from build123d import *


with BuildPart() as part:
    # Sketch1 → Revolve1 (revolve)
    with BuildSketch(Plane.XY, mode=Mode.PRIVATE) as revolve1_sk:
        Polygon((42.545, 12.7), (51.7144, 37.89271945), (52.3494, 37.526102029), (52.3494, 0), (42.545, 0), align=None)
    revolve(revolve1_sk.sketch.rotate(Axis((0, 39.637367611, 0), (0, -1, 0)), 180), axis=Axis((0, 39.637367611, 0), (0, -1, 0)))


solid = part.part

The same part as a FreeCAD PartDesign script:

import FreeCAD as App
import Part
import Sketcher
from FreeCAD import Vector
Q = App.Units.Quantity

doc = App.newDocument("Part")
params = doc.addObject("Spreadsheet::Sheet", "Params")
for row, (alias, value) in enumerate([
    ("sketch1_height", "0.5 in"),
    ("sketch1_width", "0.386 in"),
    ("revolution_angle", "360 deg"),
], start=1):
    params.set(f"A{row}", alias)
    params.set(f"B{row}", "=" + value)
    params.setAlias(f"B{row}", alias)

body = doc.addObject("PartDesign::Body", "Body")

# Sketch on XY plane
sketch1 = doc.addObject("Sketcher::SketchObject", "Sketch")
body.addObject(sketch1)
sketch1.AttachmentSupport = (doc.XY_Plane, [""])
sketch1.MapMode = "FlatFace"
sketch1.addGeometry([
    Part.LineSegment(Vector(51.7144, 37.892719, 0), Vector(42.545, 12.7, 0)),  # 0
    Part.LineSegment(Vector(42.545, 12.7, 0), Vector(42.545, 0, 0)),  # 1
    Part.LineSegment(Vector(42.545, 0, 0), Vector(52.3494, 0, 0)),  # 2
    Part.LineSegment(Vector(52.3494, 0, 0), Vector(52.3494, 37.526102, 0)),  # 3
    Part.LineSegment(Vector(52.3494, 37.526102, 0), Vector(51.7144, 37.892719, 0)),  # 4
], False)
sketch1.addConstraint([
    Sketcher.Constraint("Coincident", 0, 2, 1, 1),
    Sketcher.Constraint("Coincident", 1, 2, 2, 1),
    Sketcher.Constraint("Coincident", 2, 2, 3, 1),
    Sketcher.Constraint("Coincident", 3, 2, 4, 1),
    Sketcher.Constraint("Coincident", 4, 2, 0, 1),
    Sketcher.Constraint("Vertical", 1),
    Sketcher.Constraint("Horizontal", 2),
    Sketcher.Constraint("Vertical", 3),
    Sketcher.Constraint("PointOnObject", 1, 2, -1),
    Sketcher.Constraint("DistanceY", 1, 2, 1, 1, Q("0.5 in")),
    Sketcher.Constraint("Angle", 0, Q("-110 deg")),
    Sketcher.Constraint("Angle", 4, Q("150 deg")),
    Sketcher.Constraint("DistanceX", 2, 1, 2, 2, Q("0.386 in")),
    Sketcher.Constraint("DistanceX", -1, 1, 0, 2, Q("1.675 in")),
    Sketcher.Constraint("DistanceX", -1, 1, 4, 2, Q("2.036 in")),
])
sketch1.setExpression("Constraints[9]", "Params.sketch1_height")
sketch1.setExpression("Constraints[12]", "Params.sketch1_width")
revolution = doc.addObject("PartDesign::Revolution", "Revolution")
body.addObject(revolution)
revolution.Profile = sketch1
revolution.ReferenceAxis = (sketch1, ["V_Axis"])
revolution.setExpression("Angle", "Params.revolution_angle")

doc.recompute()
